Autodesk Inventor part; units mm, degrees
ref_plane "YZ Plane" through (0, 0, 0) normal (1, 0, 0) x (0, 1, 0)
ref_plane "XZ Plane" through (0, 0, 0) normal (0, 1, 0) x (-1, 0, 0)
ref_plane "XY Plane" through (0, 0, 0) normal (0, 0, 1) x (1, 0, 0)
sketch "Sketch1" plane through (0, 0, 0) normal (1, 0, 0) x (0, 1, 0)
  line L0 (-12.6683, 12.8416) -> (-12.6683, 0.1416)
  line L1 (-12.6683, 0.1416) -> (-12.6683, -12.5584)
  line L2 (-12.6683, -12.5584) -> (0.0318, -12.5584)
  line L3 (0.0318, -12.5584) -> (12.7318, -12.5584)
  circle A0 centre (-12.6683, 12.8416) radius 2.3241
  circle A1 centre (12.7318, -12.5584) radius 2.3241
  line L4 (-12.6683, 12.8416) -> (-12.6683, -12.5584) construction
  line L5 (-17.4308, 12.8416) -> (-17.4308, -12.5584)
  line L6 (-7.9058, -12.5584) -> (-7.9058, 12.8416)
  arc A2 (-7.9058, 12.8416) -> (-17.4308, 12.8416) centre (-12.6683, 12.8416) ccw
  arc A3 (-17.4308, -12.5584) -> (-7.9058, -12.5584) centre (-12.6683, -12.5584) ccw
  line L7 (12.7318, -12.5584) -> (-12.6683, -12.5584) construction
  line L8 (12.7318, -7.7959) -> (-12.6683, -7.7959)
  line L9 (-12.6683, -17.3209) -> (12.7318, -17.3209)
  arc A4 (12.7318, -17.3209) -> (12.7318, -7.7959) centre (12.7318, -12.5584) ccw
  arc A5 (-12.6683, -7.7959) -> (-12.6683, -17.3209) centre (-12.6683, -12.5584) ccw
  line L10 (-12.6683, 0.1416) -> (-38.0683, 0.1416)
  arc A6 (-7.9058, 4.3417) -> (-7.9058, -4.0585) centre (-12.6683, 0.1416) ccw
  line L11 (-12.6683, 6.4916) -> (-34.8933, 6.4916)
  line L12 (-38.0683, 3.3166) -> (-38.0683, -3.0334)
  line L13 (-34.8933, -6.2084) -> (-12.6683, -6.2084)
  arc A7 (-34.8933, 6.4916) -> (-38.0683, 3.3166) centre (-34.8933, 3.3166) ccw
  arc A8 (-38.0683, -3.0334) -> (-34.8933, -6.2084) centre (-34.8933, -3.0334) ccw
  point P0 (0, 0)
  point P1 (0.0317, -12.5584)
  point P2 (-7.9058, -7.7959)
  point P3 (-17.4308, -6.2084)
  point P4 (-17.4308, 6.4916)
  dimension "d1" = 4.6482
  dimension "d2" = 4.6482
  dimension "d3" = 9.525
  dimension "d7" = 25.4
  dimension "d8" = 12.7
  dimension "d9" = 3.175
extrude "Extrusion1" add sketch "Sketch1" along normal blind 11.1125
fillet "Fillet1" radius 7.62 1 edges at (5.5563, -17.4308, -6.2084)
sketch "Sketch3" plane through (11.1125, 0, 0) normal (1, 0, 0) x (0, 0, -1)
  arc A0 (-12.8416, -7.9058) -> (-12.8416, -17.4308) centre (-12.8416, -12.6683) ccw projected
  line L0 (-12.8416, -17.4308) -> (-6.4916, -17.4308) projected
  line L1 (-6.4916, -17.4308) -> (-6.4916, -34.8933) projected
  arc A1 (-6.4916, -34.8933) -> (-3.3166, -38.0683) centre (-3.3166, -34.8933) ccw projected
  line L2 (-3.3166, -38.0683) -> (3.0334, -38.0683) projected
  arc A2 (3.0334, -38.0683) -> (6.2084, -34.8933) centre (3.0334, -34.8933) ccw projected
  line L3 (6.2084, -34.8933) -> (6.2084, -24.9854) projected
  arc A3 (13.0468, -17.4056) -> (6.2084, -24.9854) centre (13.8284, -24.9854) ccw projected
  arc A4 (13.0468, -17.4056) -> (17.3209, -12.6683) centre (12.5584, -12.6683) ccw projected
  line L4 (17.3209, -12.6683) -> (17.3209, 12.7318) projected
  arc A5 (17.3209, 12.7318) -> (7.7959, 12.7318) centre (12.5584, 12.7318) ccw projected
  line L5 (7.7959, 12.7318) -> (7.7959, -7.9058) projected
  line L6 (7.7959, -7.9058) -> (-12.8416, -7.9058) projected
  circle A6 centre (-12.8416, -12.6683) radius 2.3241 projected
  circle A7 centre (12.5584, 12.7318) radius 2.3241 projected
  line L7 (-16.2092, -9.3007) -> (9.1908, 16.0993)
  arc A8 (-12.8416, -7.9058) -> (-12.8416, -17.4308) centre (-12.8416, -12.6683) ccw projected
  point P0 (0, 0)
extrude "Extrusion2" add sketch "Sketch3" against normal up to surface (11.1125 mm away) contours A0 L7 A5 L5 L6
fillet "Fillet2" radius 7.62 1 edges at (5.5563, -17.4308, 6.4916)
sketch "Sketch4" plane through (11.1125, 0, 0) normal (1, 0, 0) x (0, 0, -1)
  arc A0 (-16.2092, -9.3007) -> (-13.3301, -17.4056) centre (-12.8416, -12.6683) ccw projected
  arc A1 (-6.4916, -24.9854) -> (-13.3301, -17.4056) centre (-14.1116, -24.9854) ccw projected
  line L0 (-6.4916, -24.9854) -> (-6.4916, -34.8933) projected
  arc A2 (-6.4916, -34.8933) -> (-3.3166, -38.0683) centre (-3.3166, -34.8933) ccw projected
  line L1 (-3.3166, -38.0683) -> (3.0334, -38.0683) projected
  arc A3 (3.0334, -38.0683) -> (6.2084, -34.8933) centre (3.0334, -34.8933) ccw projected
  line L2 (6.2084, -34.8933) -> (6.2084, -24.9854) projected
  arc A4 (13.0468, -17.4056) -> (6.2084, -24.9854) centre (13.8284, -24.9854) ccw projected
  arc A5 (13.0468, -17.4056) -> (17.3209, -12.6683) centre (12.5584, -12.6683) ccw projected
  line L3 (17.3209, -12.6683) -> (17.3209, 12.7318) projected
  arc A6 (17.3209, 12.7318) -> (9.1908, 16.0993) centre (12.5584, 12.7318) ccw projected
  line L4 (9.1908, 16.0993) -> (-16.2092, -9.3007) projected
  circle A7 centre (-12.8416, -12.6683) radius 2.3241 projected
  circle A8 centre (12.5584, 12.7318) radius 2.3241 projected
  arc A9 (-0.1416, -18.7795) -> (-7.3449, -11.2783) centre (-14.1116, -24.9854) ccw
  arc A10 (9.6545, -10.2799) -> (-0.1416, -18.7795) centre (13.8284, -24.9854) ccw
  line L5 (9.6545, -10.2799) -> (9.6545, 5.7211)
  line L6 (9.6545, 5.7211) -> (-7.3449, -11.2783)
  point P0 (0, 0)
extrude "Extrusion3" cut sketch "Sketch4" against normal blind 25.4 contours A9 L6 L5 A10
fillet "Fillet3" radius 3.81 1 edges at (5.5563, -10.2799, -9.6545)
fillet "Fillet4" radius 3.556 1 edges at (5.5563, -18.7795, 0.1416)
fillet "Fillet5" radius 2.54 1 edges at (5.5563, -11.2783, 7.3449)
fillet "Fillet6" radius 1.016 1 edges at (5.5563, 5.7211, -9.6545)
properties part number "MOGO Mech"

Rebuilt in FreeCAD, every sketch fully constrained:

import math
import FreeCAD as App
import Part
import Sketcher
from FreeCAD import Vector
Q = App.Units.Quantity


def edges_at(feature, points):
    """Names of the edges that pass closest to the given points."""
    edges = feature.Shape.Edges
    near = lambda p: min(range(len(edges)), key=lambda i: edges[i].distToShape(Part.Vertex(*p))[0])
    return sorted({f"Edge{near(p) + 1}" for p in points})

doc = App.newDocument("Part")
body = doc.addObject("PartDesign::Body", "Body")

# Sketch on YZ plane
sketch1 = doc.addObject("Sketcher::SketchObject", "Sketch")
body.addObject(sketch1)
sketch1.AttachmentSupport = (doc.YZ_Plane, [""])
sketch1.MapMode = "FlatFace"
sketch1.addGeometry([
    Part.ArcOfCircle(Part.Circle(Vector(-12.7, 12.8, 0), Vector(0, 0, 1), 4.8), math.radians(0), math.radians(180)),  # 0
    Part.LineSegment(Vector(-17.4, 12.8, 0), Vector(-17.4, 6.5, 0)),  # 1
    Part.LineSegment(Vector(-17.4, 6.5, 0), Vector(-34.9, 6.5, 0)),  # 2
    Part.ArcOfCircle(Part.Circle(Vector(-34.9, 3.3, 0), Vector(0, 0, 1), 3.2), math.radians(90), math.radians(180)),  # 3
    Part.LineSegment(Vector(-38.1, 3.3, 0), Vector(-38.1, -3, 0)),  # 4
    Part.ArcOfCircle(Part.Circle(Vector(-34.9, -3, 0), Vector(0, 0, 1), 3.2), math.radians(180), math.radians(270)),  # 5
    Part.LineSegment(Vector(-34.9, -6.2, 0), Vector(-17.4, -6.2, 0)),  # 6
    Part.LineSegment(Vector(-17.4, -6.2, 0), Vector(-17.4, -12.6, 0)),  # 7
    Part.ArcOfCircle(Part.Circle(Vector(-12.7, -12.6, 0), Vector(0, 0, 1), 4.8), math.radians(180), math.radians(270)),  # 8
    Part.LineSegment(Vector(-12.7, -17.3, 0), Vector(12.7, -17.3, 0)),  # 9
    Part.ArcOfCircle(Part.Circle(Vector(12.7, -12.6, 0), Vector(0, 0, 1), 4.8), math.radians(-90), math.radians(90)),  # 10
    Part.LineSegment(Vector(12.7, -7.8, 0), Vector(-7.9, -7.8, 0)),  # 11
    Part.LineSegment(Vector(-7.9, -7.8, 0), Vector(-7.9, 12.8, 0)),  # 12
    Part.Circle(Vector(-12.7, 12.8, 0), Vector(0, 0, 1), 2.3),  # 13
    Part.Circle(Vector(12.7, -12.6, 0), Vector(0, 0, 1), 2.3),  # 14
], False)
sketch1.addConstraint([
    Sketcher.Constraint("Tangent", 0, 2, 1, 1),
    Sketcher.Constraint("Coincident", 1, 2, 2, 1),
    Sketcher.Constraint("Tangent", 2, 2, 3, 1),
    Sketcher.Constraint("Tangent", 3, 2, 4, 1),
    Sketcher.Constraint("Tangent", 4, 2, 5, 1),
    Sketcher.Constraint("Tangent", 5, 2, 6, 1),
    Sketcher.Constraint("Coincident", 6, 2, 7, 1),
    Sketcher.Constraint("Tangent", 7, 2, 8, 1),
    Sketcher.Constraint("Tangent", 8, 2, 9, 1),
    Sketcher.Constraint("Tangent", 9, 2, 10, 1),
    Sketcher.Constraint("Tangent", 10, 2, 11, 1),
    Sketcher.Constraint("Coincident", 11, 2, 12, 1),
    Sketcher.Constraint("Tangent", 12, 2, 0, 1),
    Sketcher.Constraint("Vertical", 1),
    Sketcher.Constraint("Horizontal", 2),
    Sketcher.Constraint("Vertical", 4),
    Sketcher.Constraint("Horizontal", 6),
    Sketcher.Constraint("Vertical", 7),
    Sketcher.Constraint("Horizontal", 9),
    Sketcher.Constraint("Horizontal", 11),
    Sketcher.Constraint("Vertical", 12),
    Sketcher.Constraint("Coincident", 13, 3, 0, 3),
    Sketcher.Constraint("Coincident", 14, 3, 10, 3),
    Sketcher.Constraint("Equal", 3, 5),
    Sketcher.Constraint("Equal", 0, 8),
    Sketcher.Constraint("Equal", 8, 10),
    Sketcher.Constraint("Equal", 13, 14),
    Sketcher.Constraint("Vertical", 0, 3, 8, 3),
    Sketcher.Constraint("Equal", 1, 4),
    Sketcher.Constraint("Equal", 4, 7),
    Sketcher.Constraint("Equal", 11, 12),
    Sketcher.Constraint("DistanceX", 9, 1, 9, 2, Q("1 in")),
    Sketcher.Constraint("Diameter", 13, Q("0.183 in")),
    Sketcher.Constraint("Radius", 0, Q("0.1875 in")),
    Sketcher.Constraint("Radius", 3, Q("0.125 in")),
    Sketcher.Constraint("DistanceX", 2, 2, 2, 1, Q("0.6875 in")),
    Sketcher.Constraint("DistanceX", 0, 3, -1, 1, 12.6683),
    Sketcher.Constraint("DistanceY", -1, 1, 0, 3, 12.8416),
])
pad1 = doc.addObject("PartDesign::Pad", "Pad")
body.addObject(pad1)
pad1.Profile = sketch1
pad1.Length = Q("0.4375 in")
doc.recompute()

fillet = doc.addObject("PartDesign::Fillet", "Fillet")
body.addObject(fillet)
fillet.Base = (pad1, edges_at(pad1, [(5.556, -17.431, -6.208)]))
fillet.Radius = Q("0.3 in")

# Sketch on YZ plane
sketch2 = doc.addObject("Sketcher::SketchObject", "Sketch001")
body.addObject(sketch2)
sketch2.AttachmentSupport = (doc.YZ_Plane, [""])
sketch2.MapMode = "FlatFace"
sketch2.AttachmentOffset = App.Placement(Vector(0, 0, 0.4375 * 25.4), App.Rotation())
sketch2.addGeometry([
    Part.ArcOfCircle(Part.Circle(Vector(-12.7, 12.8, 0), Vector(0, 0, 1), 4.8), math.radians(0), math.radians(45)),  # 0
    Part.LineSegment(Vector(-7.9, 12.8, 0), Vector(-7.9, -7.8, 0)),  # 1
    Part.LineSegment(Vector(-7.9, -7.8, 0), Vector(12.7, -7.8, 0)),  # 2
    Part.ArcOfCircle(Part.Circle(Vector(12.7, -12.6, 0), Vector(0, 0, 1), 4.8), math.radians(45), math.radians(90)),  # 3
    Part.LineSegment(Vector(16.1, -9.2, 0), Vector(-9.3, 16.2, 0)),  # 4
], False)
sketch2.addConstraint([
    Sketcher.Constraint("Tangent", 0, 1, 1, 1),
    Sketcher.Constraint("Coincident", 1, 2, 2, 1),
    Sketcher.Constraint("Tangent", 2, 2, 3, 2),
    Sketcher.Constraint("Tangent", 3, 1, 4, 1),
    Sketcher.Constraint("Tangent", 4, 2, 0, 2),
    Sketcher.Constraint("Vertical", 1),
    Sketcher.Constraint("Horizontal", 2),
    Sketcher.Constraint("Equal", 0, 3),
    Sketcher.Constraint("Equal", 2, 1),
    Sketcher.Constraint("Radius", 0, Q("0.1875 in")),
    Sketcher.Constraint("DistanceX", 0, 3, 3, 3, Q("1 in")),
    Sketcher.Constraint("DistanceX", 0, 3, -1, 1, 12.6683),
    Sketcher.Constraint("DistanceY", -1, 1, 0, 3, 12.8416),
])
pad2 = doc.addObject("PartDesign::Pad", "Pad001")
body.addObject(pad2)
pad2.Profile = sketch2
pad2.Length = Q("0.4375 in")
pad2.Reversed = True
doc.recompute()

fillet2 = doc.addObject("PartDesign::Fillet", "Fillet001")
body.addObject(fillet2)
fillet2.Base = (pad2, edges_at(pad2, [(5.556, -17.431, 6.492)]))
fillet2.Radius = Q("0.3 in")

# Sketch on YZ plane
sketch3 = doc.addObject("Sketcher::SketchObject", "Sketch002")
body.addObject(sketch3)
sketch3.AttachmentSupport = (doc.YZ_Plane, [""])
sketch3.MapMode = "FlatFace"
sketch3.AttachmentOffset = App.Placement(Vector(0, 0, 0.4375 * 25.4), App.Rotation())
sketch3.addGeometry([
    Part.ArcOfCircle(Part.Circle(Vector(-25, 14, 0), Vector(0, 0, 1), 15), math.radians(-66), math.radians(-26)),
    Part.ArcOfCircle(Part.Circle(Vector(-25, -14, 0), Vector(0, 0, 1), 15), math.radians(16), math.radians(66)),
    Part.LineSegment(Vector(-10, -10, 0), Vector(6, -10, 0)),
    Part.LineSegment(Vector(6, -10, 0), Vector(-11, 7, 0)),
], False)
sketch3.addConstraint([
    Sketcher.Constraint("Coincident", 0, 1, 1, 2),
    Sketcher.Constraint("Coincident", 1, 1, 2, 1),
    Sketcher.Constraint("Coincident", 2, 2, 3, 1),
    Sketcher.Constraint("Coincident", 3, 2, 0, 2),
    Sketcher.Constraint("Horizontal", 2),
    Sketcher.Constraint("Equal", 0, 1),
    Sketcher.Constraint("Vertical", 0, 3, 1, 3),
    Sketcher.Constraint("Angle", 3, Q("135 deg")),
    Sketcher.Constraint("DistanceY", 1, 3, 0, 3, Q("1.1 in")),
    Sketcher.Constraint("Radius", 0, 15.2864),
    Sketcher.Constraint("DistanceX", 2, 1, 2, 2, 16.001),
    Sketcher.Constraint("DistanceY", 1, 1, -1, 1, Q("0.3801 in")),
    Sketcher.Constraint("DistanceX", 0, 1, 2, 2, Q("0.9646 in")),
    Sketcher.Constraint("DistanceX", 0, 3, -1, 1, 24.9854),
])
pocket1 = doc.addObject("PartDesign::Pocket", "Pocket")
body.addObject(pocket1)
pocket1.Profile = sketch3
pocket1.Length = Q("1 in")
doc.recompute()

fillet3 = doc.addObject("PartDesign::Fillet", "Fillet002")
body.addObject(fillet3)
fillet3.Base = (pocket1, edges_at(pocket1, [(5.556, -10.28, -9.655)]))
fillet3.Radius = Q("0.15 in")
doc.recompute()

fillet4 = doc.addObject("PartDesign::Fillet", "Fillet003")
body.addObject(fillet4)
fillet4.Base = (fillet3, edges_at(fillet3, [(5.556, -18.779, 0.142)]))
fillet4.Radius = Q("0.14 in")
doc.recompute()

fillet5 = doc.addObject("PartDesign::Fillet", "Fillet004")
body.addObject(fillet5)
fillet5.Base = (fillet4, edges_at(fillet4, [(5.556, -11.278, 7.345)]))
fillet5.Radius = Q("0.1 in")
doc.recompute()

fillet6 = doc.addObject("PartDesign::Fillet", "Fillet005")
body.addObject(fillet6)
fillet6.Base = (fillet5, edges_at(fillet5, [(5.556, 5.721, -9.655)]))
fillet6.Radius = Q("0.04 in")

doc.recompute()
